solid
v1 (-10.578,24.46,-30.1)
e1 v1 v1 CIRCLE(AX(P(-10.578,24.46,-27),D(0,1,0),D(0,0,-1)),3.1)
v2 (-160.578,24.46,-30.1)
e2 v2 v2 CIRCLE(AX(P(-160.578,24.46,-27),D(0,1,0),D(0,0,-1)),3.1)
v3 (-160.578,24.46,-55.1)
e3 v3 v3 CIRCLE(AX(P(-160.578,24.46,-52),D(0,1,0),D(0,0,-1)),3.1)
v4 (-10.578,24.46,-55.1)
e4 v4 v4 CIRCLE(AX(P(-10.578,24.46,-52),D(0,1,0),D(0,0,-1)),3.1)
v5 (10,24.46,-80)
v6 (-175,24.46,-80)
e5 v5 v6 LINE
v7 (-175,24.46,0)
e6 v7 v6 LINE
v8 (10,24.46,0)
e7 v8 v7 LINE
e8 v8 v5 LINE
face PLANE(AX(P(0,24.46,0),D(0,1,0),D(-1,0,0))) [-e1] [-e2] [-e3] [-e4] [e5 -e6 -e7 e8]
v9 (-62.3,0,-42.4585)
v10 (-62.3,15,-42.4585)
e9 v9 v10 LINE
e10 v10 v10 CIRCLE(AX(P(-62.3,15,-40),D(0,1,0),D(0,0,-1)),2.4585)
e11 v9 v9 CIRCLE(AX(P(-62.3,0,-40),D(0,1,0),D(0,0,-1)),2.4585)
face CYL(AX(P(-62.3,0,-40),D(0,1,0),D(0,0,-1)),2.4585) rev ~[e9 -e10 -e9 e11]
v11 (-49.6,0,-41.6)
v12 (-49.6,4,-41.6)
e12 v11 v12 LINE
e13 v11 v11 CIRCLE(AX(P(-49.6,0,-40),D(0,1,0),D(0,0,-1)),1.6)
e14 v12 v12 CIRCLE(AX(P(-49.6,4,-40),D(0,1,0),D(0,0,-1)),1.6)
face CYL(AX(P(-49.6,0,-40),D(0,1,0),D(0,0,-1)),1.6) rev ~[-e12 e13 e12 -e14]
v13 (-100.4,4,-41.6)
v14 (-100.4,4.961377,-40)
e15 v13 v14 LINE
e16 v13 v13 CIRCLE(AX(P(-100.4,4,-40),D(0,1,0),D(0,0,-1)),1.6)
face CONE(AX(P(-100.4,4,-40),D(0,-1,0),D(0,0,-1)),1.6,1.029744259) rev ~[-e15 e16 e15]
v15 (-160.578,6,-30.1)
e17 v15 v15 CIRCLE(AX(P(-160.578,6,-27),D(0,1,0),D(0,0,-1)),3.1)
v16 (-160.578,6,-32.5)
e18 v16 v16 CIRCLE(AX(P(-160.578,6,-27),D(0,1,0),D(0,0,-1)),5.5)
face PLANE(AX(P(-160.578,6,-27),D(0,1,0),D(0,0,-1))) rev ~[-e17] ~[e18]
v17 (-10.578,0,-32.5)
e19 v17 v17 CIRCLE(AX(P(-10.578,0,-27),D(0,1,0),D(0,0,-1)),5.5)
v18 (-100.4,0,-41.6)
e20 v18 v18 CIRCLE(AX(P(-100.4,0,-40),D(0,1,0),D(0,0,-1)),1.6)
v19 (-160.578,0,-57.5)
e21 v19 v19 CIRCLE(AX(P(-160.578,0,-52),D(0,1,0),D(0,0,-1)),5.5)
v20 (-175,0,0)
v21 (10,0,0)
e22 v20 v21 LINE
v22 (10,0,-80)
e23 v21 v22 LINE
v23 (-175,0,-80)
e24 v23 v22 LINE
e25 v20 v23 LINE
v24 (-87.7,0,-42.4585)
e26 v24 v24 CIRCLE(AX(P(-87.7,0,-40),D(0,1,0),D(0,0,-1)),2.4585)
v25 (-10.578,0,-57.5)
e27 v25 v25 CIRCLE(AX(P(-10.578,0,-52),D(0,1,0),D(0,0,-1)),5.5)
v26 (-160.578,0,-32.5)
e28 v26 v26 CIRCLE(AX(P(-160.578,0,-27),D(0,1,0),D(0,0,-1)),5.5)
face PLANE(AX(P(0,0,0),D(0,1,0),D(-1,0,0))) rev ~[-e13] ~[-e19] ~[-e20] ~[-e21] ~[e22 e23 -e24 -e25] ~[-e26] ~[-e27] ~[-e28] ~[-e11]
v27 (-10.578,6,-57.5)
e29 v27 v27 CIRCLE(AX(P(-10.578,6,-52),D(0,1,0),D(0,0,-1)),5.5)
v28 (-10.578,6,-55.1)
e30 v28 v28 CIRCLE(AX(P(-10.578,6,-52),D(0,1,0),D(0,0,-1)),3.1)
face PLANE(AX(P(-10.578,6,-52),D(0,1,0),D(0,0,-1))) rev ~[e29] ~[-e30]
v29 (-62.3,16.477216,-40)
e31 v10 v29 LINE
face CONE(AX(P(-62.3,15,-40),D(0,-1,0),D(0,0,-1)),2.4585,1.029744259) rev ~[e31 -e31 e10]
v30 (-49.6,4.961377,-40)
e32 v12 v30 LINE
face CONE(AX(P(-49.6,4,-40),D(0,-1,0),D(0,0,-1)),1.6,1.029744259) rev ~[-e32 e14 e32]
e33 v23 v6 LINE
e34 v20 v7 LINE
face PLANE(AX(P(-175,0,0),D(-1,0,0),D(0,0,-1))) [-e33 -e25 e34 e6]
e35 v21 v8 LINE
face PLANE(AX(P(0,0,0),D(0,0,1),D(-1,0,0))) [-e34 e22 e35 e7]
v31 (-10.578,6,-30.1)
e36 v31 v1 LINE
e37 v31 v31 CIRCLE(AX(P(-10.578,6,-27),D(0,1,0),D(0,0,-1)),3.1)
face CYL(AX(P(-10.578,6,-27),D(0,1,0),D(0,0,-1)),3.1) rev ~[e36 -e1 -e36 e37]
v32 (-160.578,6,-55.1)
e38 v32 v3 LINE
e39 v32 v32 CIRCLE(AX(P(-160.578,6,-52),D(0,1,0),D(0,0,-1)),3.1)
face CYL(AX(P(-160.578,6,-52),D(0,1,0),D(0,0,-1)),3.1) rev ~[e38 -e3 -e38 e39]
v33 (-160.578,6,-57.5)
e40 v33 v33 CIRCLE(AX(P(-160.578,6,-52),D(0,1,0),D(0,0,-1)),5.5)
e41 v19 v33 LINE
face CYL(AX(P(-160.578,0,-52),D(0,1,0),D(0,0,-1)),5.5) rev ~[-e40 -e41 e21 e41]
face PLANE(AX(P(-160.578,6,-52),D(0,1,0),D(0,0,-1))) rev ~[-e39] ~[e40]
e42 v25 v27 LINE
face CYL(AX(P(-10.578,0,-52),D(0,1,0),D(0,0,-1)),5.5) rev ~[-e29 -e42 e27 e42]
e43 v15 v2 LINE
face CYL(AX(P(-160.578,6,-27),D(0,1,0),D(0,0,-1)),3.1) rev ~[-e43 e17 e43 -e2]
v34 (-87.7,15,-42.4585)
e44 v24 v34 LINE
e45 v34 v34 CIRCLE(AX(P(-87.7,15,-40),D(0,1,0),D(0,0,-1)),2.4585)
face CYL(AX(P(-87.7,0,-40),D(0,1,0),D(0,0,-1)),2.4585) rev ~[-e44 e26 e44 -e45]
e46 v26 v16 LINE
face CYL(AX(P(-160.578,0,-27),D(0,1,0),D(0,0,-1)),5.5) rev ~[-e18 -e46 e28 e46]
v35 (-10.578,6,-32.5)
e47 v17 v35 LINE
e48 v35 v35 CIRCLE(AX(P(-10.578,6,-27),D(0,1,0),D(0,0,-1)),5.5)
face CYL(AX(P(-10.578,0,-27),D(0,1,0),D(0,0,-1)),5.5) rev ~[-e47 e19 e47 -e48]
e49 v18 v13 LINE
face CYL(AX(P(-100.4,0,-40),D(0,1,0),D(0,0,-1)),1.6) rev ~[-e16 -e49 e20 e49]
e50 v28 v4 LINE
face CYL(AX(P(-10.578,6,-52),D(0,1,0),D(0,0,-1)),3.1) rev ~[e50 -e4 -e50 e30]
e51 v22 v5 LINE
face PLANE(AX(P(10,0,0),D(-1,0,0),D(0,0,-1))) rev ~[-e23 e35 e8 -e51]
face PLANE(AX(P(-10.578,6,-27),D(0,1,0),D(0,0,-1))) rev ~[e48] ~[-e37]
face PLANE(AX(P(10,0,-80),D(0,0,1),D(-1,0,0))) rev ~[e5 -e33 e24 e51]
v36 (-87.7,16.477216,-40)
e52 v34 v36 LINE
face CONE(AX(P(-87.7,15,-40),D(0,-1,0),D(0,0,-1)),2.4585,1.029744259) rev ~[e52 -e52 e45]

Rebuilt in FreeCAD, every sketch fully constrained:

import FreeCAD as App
import Part
import Sketcher

doc = App.newDocument("Part")
body = doc.addObject("PartDesign::Body", "Body")

# Sketch on XZ plane
sketch1 = body.newObject("Sketcher::SketchObject", "Sketch")
sketch1.AttachmentSupport = (doc.getObject("XZ_Plane"), [""])
sketch1.MapMode = "FlatFace"
sketch1.addGeometry(Part.LineSegment(App.Vector(10, 0, 0), App.Vector(10, -80, 0)), False)
sketch1.addGeometry(Part.LineSegment(App.Vector(10, -80, 0), App.Vector(-175, -80, 0)), False)
sketch1.addGeometry(Part.LineSegment(App.Vector(-175, -80, 0), App.Vector(-175, 0, 0)), False)
sketch1.addGeometry(Part.LineSegment(App.Vector(-175, 0, 0), App.Vector(10, 0, 0)), False)
sketch1.addConstraint(Sketcher.Constraint("Coincident", 0, 2, 1, 1))
sketch1.addConstraint(Sketcher.Constraint("Coincident", 1, 2, 2, 1))
sketch1.addConstraint(Sketcher.Constraint("Coincident", 2, 2, 3, 1))
sketch1.addConstraint(Sketcher.Constraint("Coincident", 3, 2, 0, 1))
sketch1.addConstraint(Sketcher.Constraint("Vertical", 0))
sketch1.addConstraint(Sketcher.Constraint("Horizontal", 1))
sketch1.addConstraint(Sketcher.Constraint("Vertical", 2))
sketch1.addConstraint(Sketcher.Constraint("Horizontal", 3))
sketch1.addConstraint(Sketcher.Constraint("PointOnObject", 2, 2, -1))
sketch1.addConstraint(Sketcher.Constraint("DistanceY", 0, 2, 0, 1, 80.0))
sketch1.addConstraint(Sketcher.Constraint("DistanceX", -1, 1, 0, 2, 10.0))
sketch1.addConstraint(Sketcher.Constraint("DistanceX", 1, 2, 1, 1, 185.0))
pad1 = body.newObject("PartDesign::Pad", "Pad")
pad1.Profile = sketch1
pad1.Length = 24.46
pad1.Reversed = True

# Sketch on XZ plane
sketch2 = body.newObject("Sketcher::SketchObject", "Sketch001")
sketch2.AttachmentSupport = (doc.getObject("XZ_Plane"), [""])
sketch2.MapMode = "FlatFace"
sketch2.addGeometry(Part.Circle(App.Vector(-49.6, -40, 0), App.Vector(0, 0, 1), 1.6), False)
sketch2.addGeometry(Part.Circle(App.Vector(-100.4, -40, 0), App.Vector(0, 0, 1), 1.6), False)
sketch2.addConstraint(Sketcher.Constraint("Equal", 0, 1))
sketch2.addConstraint(Sketcher.Constraint("Horizontal", 0, 3, 1, 3))
sketch2.addConstraint(Sketcher.Constraint("Diameter", 0, 3.2))
sketch2.addConstraint(Sketcher.Constraint("DistanceY", 0, 3, -1, 1, 40.0))
sketch2.addConstraint(Sketcher.Constraint("DistanceX", 0, 3, -1, 1, 49.6))
sketch2.addConstraint(Sketcher.Constraint("DistanceX", 1, 3, -1, 1, 100.4))
doc.recompute()
hole = body.newObject("PartDesign::Hole", "Hole")
hole.Profile = sketch2
hole.ThreadType = "None"
hole.Diameter = 3.2
hole.DepthType = "Dimension"
hole.Depth = 4
hole.DrillPoint = "Angled"
hole.DrillPointAngle = 118

# Sketch on XZ plane
sketch3 = body.newObject("Sketcher::SketchObject", "Sketch002")
sketch3.AttachmentSupport = (doc.getObject("XZ_Plane"), [""])
sketch3.MapMode = "FlatFace"
sketch3.addGeometry(Part.Circle(App.Vector(-87.7, -40, 0), App.Vector(0, 0, 1), 2.5), False)
sketch3.addGeometry(Part.Circle(App.Vector(-62.3, -40, 0), App.Vector(0, 0, 1), 2.5), False)
sketch3.addConstraint(Sketcher.Constraint("Equal", 0, 1))
sketch3.addConstraint(Sketcher.Constraint("Horizontal", 0, 3, 1, 3))
sketch3.addConstraint(Sketcher.Constraint("Diameter", 0, 4.917))
sketch3.addConstraint(Sketcher.Constraint("DistanceY", 0, 3, -1, 1, 40.0))
sketch3.addConstraint(Sketcher.Constraint("DistanceX", 0, 3, -1, 1, 87.7))
sketch3.addConstraint(Sketcher.Constraint("DistanceX", 1, 3, -1, 1, 62.3))
doc.recompute()
hole2 = body.newObject("PartDesign::Hole", "Hole001")
hole2.Profile = sketch3
hole2.ThreadType = "None"
hole2.Diameter = 4.917
hole2.DepthType = "Dimension"
hole2.Depth = 15
hole2.DrillPoint = "Angled"
hole2.DrillPointAngle = 118

# Sketch on XZ plane
sketch4 = body.newObject("Sketcher::SketchObject", "Sketch003")
sketch4.AttachmentSupport = (doc.getObject("XZ_Plane"), [""])
sketch4.MapMode = "FlatFace"
sketch4.addGeometry(Part.Circle(App.Vector(-160.6, -27, 0), App.Vector(0, 0, 1), 3.1), False)
sketch4.addGeometry(Part.Circle(App.Vector(-160.6, -52, 0), App.Vector(0, 0, 1), 3.1), False)
sketch4.addGeometry(Part.Circle(App.Vector(-10.6, -27, 0), App.Vector(0, 0, 1), 3.1), False)
sketch4.addGeometry(Part.Circle(App.Vector(-10.6, -52, 0), App.Vector(0, 0, 1), 3.1), False)
sketch4.addConstraint(Sketcher.Constraint("Equal", 0, 1))
sketch4.addConstraint(Sketcher.Constraint("Equal", 1, 2))
sketch4.addConstraint(Sketcher.Constraint("Equal", 2, 3))
sketch4.addConstraint(Sketcher.Constraint("Horizontal", 0, 3, 2, 3))
sketch4.addConstraint(Sketcher.Constraint("Horizontal", 1, 3, 3, 3))
sketch4.addConstraint(Sketcher.Constraint("Vertical", 0, 3, 1, 3))
sketch4.addConstraint(Sketcher.Constraint("Vertical", 2, 3, 3, 3))
sketch4.addConstraint(Sketcher.Constraint("Diameter", 0, 6.2))
sketch4.addConstraint(Sketcher.Constraint("DistanceY", 0, 3, -1, 1, 27.0))
sketch4.addConstraint(Sketcher.Constraint("DistanceY", 1, 3, -1, 1, 52.0))
sketch4.addConstraint(Sketcher.Constraint("DistanceX", 0, 3, 2, 3, 150.0))
sketch4.addConstraint(Sketcher.Constraint("DistanceX", 0, 3, -1, 1, 160.578))
doc.recompute()
hole3 = body.newObject("PartDesign::Hole", "Hole002")
hole3.Profile = sketch4
hole3.ThreadType = "None"
hole3.Diameter = 6.2
hole3.DepthType = "ThroughAll"
hole3.HoleCutType = "Counterbore"
hole3.HoleCutDiameter = 11
hole3.HoleCutDepth = 6

doc.recompute()
